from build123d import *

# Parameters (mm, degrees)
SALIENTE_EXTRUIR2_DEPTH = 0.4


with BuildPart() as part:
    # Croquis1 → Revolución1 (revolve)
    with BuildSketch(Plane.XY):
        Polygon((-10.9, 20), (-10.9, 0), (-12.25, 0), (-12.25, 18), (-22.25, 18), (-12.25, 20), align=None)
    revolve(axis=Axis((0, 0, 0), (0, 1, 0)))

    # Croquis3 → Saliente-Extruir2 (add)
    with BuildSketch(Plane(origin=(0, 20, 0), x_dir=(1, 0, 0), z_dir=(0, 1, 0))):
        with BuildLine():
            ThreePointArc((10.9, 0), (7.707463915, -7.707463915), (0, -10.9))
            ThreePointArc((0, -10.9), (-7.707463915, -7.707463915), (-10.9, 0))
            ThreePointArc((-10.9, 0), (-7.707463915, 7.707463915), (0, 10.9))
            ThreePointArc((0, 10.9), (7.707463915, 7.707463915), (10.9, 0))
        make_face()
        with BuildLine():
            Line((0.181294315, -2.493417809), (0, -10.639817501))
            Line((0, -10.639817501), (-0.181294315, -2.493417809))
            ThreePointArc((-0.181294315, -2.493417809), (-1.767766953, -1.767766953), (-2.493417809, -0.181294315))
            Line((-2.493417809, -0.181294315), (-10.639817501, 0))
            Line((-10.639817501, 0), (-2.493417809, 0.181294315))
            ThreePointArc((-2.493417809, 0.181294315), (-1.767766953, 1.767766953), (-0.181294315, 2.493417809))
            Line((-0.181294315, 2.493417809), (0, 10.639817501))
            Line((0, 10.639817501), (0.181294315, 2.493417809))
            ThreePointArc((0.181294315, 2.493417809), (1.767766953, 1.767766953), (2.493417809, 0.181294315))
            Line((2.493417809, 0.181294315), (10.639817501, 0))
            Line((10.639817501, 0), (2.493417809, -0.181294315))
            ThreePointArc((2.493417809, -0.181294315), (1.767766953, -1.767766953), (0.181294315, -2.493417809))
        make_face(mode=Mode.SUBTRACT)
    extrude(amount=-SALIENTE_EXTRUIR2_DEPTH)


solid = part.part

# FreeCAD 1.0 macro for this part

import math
import FreeCAD as App
import Part
import Sketcher

V = App.Vector
Q = App.Units.Quantity

doc = App.newDocument("Part")
body = doc.addObject("PartDesign::Body", "Body")

sketch1 = body.newObject("Sketcher::SketchObject", "Sketch")
sketch1.AttachmentSupport = (doc.getObject("XY_Plane"), [""])
sketch1.MapMode = "FlatFace"
sketch1.addGeometry(Part.LineSegment(V(-10.9, 0, 0), V(-10.9, 20, 0)), False)
sketch1.addGeometry(Part.LineSegment(V(-10.9, 20, 0), V(-12.2, 20, 0)), False)
sketch1.addGeometry(Part.LineSegment(V(-12.2, 20, 0), V(-22.2, 18, 0)), False)
sketch1.addGeometry(Part.LineSegment(V(-22.2, 18, 0), V(-12.2, 18, 0)), False)
sketch1.addGeometry(Part.LineSegment(V(-12.2, 18, 0), V(-12.2, 0, 0)), False)
sketch1.addGeometry(Part.LineSegment(V(-12.2, 0, 0), V(-10.9, 0, 0)), False)
sketch1.addConstraint(Sketcher.Constraint("Coincident", 0, 2, 1, 1))
sketch1.addConstraint(Sketcher.Constraint("Coincident", 1, 2, 2, 1))
sketch1.addConstraint(Sketcher.Constraint("Coincident", 2, 2, 3, 1))
sketch1.addConstraint(Sketcher.Constraint("Coincident", 3, 2, 4, 1))
sketch1.addConstraint(Sketcher.Constraint("Coincident", 4, 2, 5, 1))
sketch1.addConstraint(Sketcher.Constraint("Coincident", 5, 2, 0, 1))
sketch1.addConstraint(Sketcher.Constraint("Vertical", 0))
sketch1.addConstraint(Sketcher.Constraint("Horizontal", 1))
sketch1.addConstraint(Sketcher.Constraint("Horizontal", 3))
sketch1.addConstraint(Sketcher.Constraint("Vertical", 4))
sketch1.addConstraint(Sketcher.Constraint("Horizontal", 5))
sketch1.addConstraint(Sketcher.Constraint("PointOnObject", 4, 2, -1))
sketch1.addConstraint(Sketcher.Constraint("Vertical", 1, 2, 3, 2))
sketch1.addConstraint(Sketcher.Constraint("DistanceX", 3, 1, 3, 2, Q("10 mm")))
sketch1.addConstraint(Sketcher.Constraint("DistanceY", 0, 1, 0, 2, Q("20 mm")))
sketch1.addConstraint(Sketcher.Constraint("DistanceY", 4, 2, 4, 1, Q("18 mm")))
sketch1.addConstraint(Sketcher.Constraint("DistanceX", 1, 2, 1, 1, Q("1.35 mm")))
sketch1.addConstraint(Sketcher.Constraint("DistanceX", 0, 2, -1, 1, Q("10.9 mm")))
revolution = body.newObject("PartDesign::Revolution", "Revolution")
revolution.Profile = sketch1
revolution.ReferenceAxis = (sketch1, ["V_Axis"])
revolution.Angle = 360

sketch2 = body.newObject("Sketcher::SketchObject", "Sketch001")
sketch2.AttachmentSupport = (doc.getObject("XZ_Plane"), [""])
sketch2.MapMode = "FlatFace"
sketch2.AttachmentOffset = App.Placement(V(0, 0, -20), App.Rotation())
sketch2.addGeometry(Part.ArcOfCircle(Part.Circle(V(0, 0, 0), V(0, 0, 1), 10.9), math.radians(0), math.radians(90)), False)
sketch2.addGeometry(Part.ArcOfCircle(Part.Circle(V(0, 0, 0), V(0, 0, 1), 10.9), math.radians(-90), math.radians(0)), False)
sketch2.addGeometry(Part.ArcOfCircle(Part.Circle(V(0, 0, 0), V(0, 0, 1), 10.9), math.radians(180), math.radians(270)), False)
sketch2.addGeometry(Part.ArcOfCircle(Part.Circle(V(0, 0, 0), V(0, 0, 1), 10.9), math.radians(90), math.radians(180)), False)
sketch2.addGeometry(Part.LineSegment(V(0.2, 2.5, 0), V(0, 10.6, 0)), False)
sketch2.addGeometry(Part.LineSegment(V(0, 10.6, 0), V(-0.2, 2.5, 0)), False)
sketch2.addGeometry(Part.ArcOfCircle(Part.Circle(V(0, 0, 0), V(0, 0, 1), 2.5), math.radians(94), math.radians(176)), False)
sketch2.addGeometry(Part.LineSegment(V(-2.5, 0.2, 0), V(-10.6, 0, 0)), False)
sketch2.addGeometry(Part.LineSegment(V(-10.6, 0, 0), V(-2.5, -0.2, 0)), False)
sketch2.addGeometry(Part.ArcOfCircle(Part.Circle(V(0, 0, 0), V(0, 0, 1), 2.5), math.radians(-176), math.radians(-94)), False)
sketch2.addGeometry(Part.LineSegment(V(-0.2, -2.5, 0), V(0, -10.6, 0)), False)
sketch2.addGeometry(Part.LineSegment(V(0, -10.6, 0), V(0.2, -2.5, 0)), False)
sketch2.addGeometry(Part.ArcOfCircle(Part.Circle(V(0, 0, 0), V(0, 0, 1), 2.5), math.radians(-86), math.radians(-4)), False)
sketch2.addGeometry(Part.LineSegment(V(2.5, -0.2, 0), V(10.6, 0, 0)), False)
sketch2.addGeometry(Part.LineSegment(V(10.6, 0, 0), V(2.5, 0.2, 0)), False)
sketch2.addGeometry(Part.ArcOfCircle(Part.Circle(V(0, 0, 0), V(0, 0, 1), 2.5), math.radians(4), math.radians(86)), False)
sketch2.addConstraint(Sketcher.Constraint("Tangent", 0, 1, 1, 2))
sketch2.addConstraint(Sketcher.Constraint("Tangent", 1, 1, 2, 2))
sketch2.addConstraint(Sketcher.Constraint("Tangent", 2, 1, 3, 2))
sketch2.addConstraint(Sketcher.Constraint("Tangent", 3, 1, 0, 2))
sketch2.addConstraint(Sketcher.Constraint("Coincident", 4, 2, 5, 1))
sketch2.addConstraint(Sketcher.Constraint("Coincident", 5, 2, 6, 1))
sketch2.addConstraint(Sketcher.Constraint("Coincident", 6, 2, 7, 1))
sketch2.addConstraint(Sketcher.Constraint("Coincident", 7, 2, 8, 1))
sketch2.addConstraint(Sketcher.Constraint("Coincident", 8, 2, 9, 1))
sketch2.addConstraint(Sketcher.Constraint("Coincident", 9, 2, 10, 1))
sketch2.addConstraint(Sketcher.Constraint("Coincident", 10, 2, 11, 1))
sketch2.addConstraint(Sketcher.Constraint("Coincident", 11, 2, 12, 1))
sketch2.addConstraint(Sketcher.Constraint("Coincident", 12, 2, 13, 1))
sketch2.addConstraint(Sketcher.Constraint("Coincident", 13, 2, 14, 1))
sketch2.addConstraint(Sketcher.Constraint("Coincident", 14, 2, 15, 1))
sketch2.addConstraint(Sketcher.Constraint("Coincident", 15, 2, 4, 1))
sketch2.addConstraint(Sketcher.Constraint("Coincident", 0, 3, -1, 1))
sketch2.addConstraint(Sketcher.Constraint("Coincident", 6, 3, -1, 1))
sketch2.addConstraint(Sketcher.Constraint("Coincident", 9, 3, -1, 1))
sketch2.addConstraint(Sketcher.Constraint("Coincident", 12, 3, -1, 1))
sketch2.addConstraint(Sketcher.Constraint("Coincident", 15, 3, -1, 1))
sketch2.addConstraint(Sketcher.Constraint("Equal", 0, 1))
sketch2.addConstraint(Sketcher.Constraint("Equal", 6, 9))
sketch2.addConstraint(Sketcher.Constraint("Equal", 9, 12))
sketch2.addConstraint(Sketcher.Constraint("Equal", 12, 15))
sketch2.addConstraint(Sketcher.Constraint("Symmetric", 4, 2, 10, 2, -1, 1))
sketch2.addConstraint(Sketcher.Constraint("Symmetric", 7, 2, 13, 2, -1, 1))
sketch2.addConstraint(Sketcher.Constraint("PointOnObject", 0, 1, -1))
sketch2.addConstraint(Sketcher.Constraint("PointOnObject", 1, 1, -2))
sketch2.addConstraint(Sketcher.Constraint("PointOnObject", 2, 1, -1))
sketch2.addConstraint(Sketcher.Constraint("PointOnObject", 3, 1, -2))
sketch2.addConstraint(Sketcher.Constraint("PointOnObject", 4, 2, -2))
sketch2.addConstraint(Sketcher.Constraint("PointOnObject", 7, 2, -1))
sketch2.addConstraint(Sketcher.Constraint("Perpendicular", 4, 7))
sketch2.addConstraint(Sketcher.Constraint("Perpendicular", 5, 8))
sketch2.addConstraint(Sketcher.Constraint("Perpendicular", 7, 10))
sketch2.addConstraint(Sketcher.Constraint("Perpendicular", 8, 11))
sketch2.addConstraint(Sketcher.Constraint("Perpendicular", 10, 13))
sketch2.addConstraint(Sketcher.Constraint("Perpendicular", 11, 14))
sketch2.addConstraint(Sketcher.Constraint("Horizontal", 9, 2, 11, 2))
sketch2.addConstraint(Sketcher.Constraint("Equal", 5, 7))
sketch2.addConstraint(Sketcher.Constraint("Radius", 0, Q("10.9 mm")))
sketch2.addConstraint(Sketcher.Constraint("Radius", 6, Q("2.5 mm")))
sketch2.addConstraint(Sketcher.Constraint("DistanceX", 7, 2, 6, 2, Q("8.1464 mm")))
sketch2.addConstraint(Sketcher.Constraint("DistanceY", 8, 2, 6, 2, Q("0.362589 mm")))
pad1 = body.newObject("PartDesign::Pad", "Pad")
pad1.Profile = sketch2
pad1.Length = 0.4

doc.recompute()
